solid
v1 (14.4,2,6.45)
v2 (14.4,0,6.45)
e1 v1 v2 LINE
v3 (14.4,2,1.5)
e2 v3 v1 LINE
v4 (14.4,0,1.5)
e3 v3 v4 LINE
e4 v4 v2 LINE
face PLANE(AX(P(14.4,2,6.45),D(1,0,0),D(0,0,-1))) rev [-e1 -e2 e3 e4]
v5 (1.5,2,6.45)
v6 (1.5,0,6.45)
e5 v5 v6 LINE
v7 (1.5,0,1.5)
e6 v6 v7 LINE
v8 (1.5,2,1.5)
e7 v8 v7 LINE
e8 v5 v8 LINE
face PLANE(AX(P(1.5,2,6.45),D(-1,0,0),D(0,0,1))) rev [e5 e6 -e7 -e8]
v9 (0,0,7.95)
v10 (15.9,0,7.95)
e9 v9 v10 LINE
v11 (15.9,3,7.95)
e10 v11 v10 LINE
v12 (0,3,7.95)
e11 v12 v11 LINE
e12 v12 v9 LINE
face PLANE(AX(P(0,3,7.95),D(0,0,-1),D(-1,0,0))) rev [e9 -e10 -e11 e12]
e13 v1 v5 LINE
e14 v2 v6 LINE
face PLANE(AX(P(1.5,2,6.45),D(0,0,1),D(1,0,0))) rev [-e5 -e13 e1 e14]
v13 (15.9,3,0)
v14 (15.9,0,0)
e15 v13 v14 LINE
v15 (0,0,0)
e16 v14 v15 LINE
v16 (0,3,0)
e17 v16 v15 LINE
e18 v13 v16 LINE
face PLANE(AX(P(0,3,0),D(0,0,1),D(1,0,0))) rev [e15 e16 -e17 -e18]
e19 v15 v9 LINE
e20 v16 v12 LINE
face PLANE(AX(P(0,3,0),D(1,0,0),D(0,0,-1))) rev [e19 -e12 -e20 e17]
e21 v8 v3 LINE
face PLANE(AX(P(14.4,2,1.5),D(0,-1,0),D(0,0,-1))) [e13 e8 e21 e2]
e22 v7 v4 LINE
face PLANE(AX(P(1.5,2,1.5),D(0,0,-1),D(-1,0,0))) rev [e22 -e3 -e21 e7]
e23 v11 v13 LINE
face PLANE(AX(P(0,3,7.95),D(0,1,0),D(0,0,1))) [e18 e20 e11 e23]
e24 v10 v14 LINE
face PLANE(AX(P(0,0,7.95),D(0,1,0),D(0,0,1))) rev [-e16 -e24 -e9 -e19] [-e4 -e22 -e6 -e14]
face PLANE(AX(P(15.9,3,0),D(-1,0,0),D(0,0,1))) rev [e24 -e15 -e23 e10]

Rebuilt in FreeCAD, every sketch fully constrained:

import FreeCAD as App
import Part
import Sketcher

doc = App.newDocument("Part")
params = doc.addObject("Spreadsheet::Sheet", "Params")
for row, (alias, value) in enumerate([
    ("sketch1_width", "15.9 mm"),
    ("sketch1_height", "7.95 mm"),
    ("pad1_length", "3 mm"),
    ("sketch2_width", "12.9 mm"),
    ("sketch2_height", "4.95 mm"),
    ("pocket1_length", "2 mm"),
], start=1):
    params.set(f"A{row}", alias)
    params.set(f"B{row}", "=" + value)
    params.setAlias(f"B{row}", alias)

body = doc.addObject("PartDesign::Body", "Body")

sketch1 = body.newObject("Sketcher::SketchObject", "Sketch")
sketch1.AttachmentSupport = (doc.getObject("XZ_Plane"), [""])
sketch1.MapMode = "FlatFace"
sketch1.addGeometry([
    Part.LineSegment(App.Vector(0, 0, 0), App.Vector(0, 8, 0)),
    Part.LineSegment(App.Vector(0, 8, 0), App.Vector(16, 8, 0)),
    Part.LineSegment(App.Vector(16, 8, 0), App.Vector(16, 0, 0)),
    Part.LineSegment(App.Vector(16, 0, 0), App.Vector(0, 0, 0)),
], False)
sketch1.addConstraint([
    Sketcher.Constraint("Coincident", 0, 2, 1, 1),
    Sketcher.Constraint("Coincident", 1, 2, 2, 1),
    Sketcher.Constraint("Coincident", 2, 2, 3, 1),
    Sketcher.Constraint("Coincident", 3, 2, 0, 1),
    Sketcher.Constraint("Vertical", 0),
    Sketcher.Constraint("Horizontal", 1),
    Sketcher.Constraint("Vertical", 2),
    Sketcher.Constraint("Horizontal", 3),
    Sketcher.Constraint("Coincident", 3, 2, -1, 1),
    Sketcher.Constraint("DistanceX", 1, 1, 1, 2, 15.9),
    Sketcher.Constraint("DistanceY", 0, 1, 0, 2, 7.95),
])
sketch1.setExpression("Constraints[9]", "Params.sketch1_width")
sketch1.setExpression("Constraints[10]", "Params.sketch1_height")
pad1 = body.newObject("PartDesign::Pad", "Pad")
pad1.Profile = sketch1
pad1.setExpression("Length", "Params.pad1_length")
pad1.Reversed = True

sketch2 = body.newObject("Sketcher::SketchObject", "Sketch001")
sketch2.AttachmentSupport = (doc.getObject("XZ_Plane"), [""])
sketch2.MapMode = "FlatFace"
sketch2.addGeometry([
    Part.LineSegment(App.Vector(1.5, 6.5, 0), App.Vector(1.5, 1.5, 0)),
    Part.LineSegment(App.Vector(1.5, 1.5, 0), App.Vector(14.4, 1.5, 0)),
    Part.LineSegment(App.Vector(14.4, 1.5, 0), App.Vector(14.4, 6.5, 0)),
    Part.LineSegment(App.Vector(14.4, 6.5, 0), App.Vector(1.5, 6.5, 0)),
], False)
sketch2.addConstraint([
    Sketcher.Constraint("Coincident", 0, 2, 1, 1),
    Sketcher.Constraint("Coincident", 1, 2, 2, 1),
    Sketcher.Constraint("Coincident", 2, 2, 3, 1),
    Sketcher.Constraint("Coincident", 3, 2, 0, 1),
    Sketcher.Constraint("Vertical", 0),
    Sketcher.Constraint("Horizontal", 1),
    Sketcher.Constraint("Vertical", 2),
    Sketcher.Constraint("Horizontal", 3),
    Sketcher.Constraint("DistanceX", 1, 1, 1, 2, 12.9),
    Sketcher.Constraint("DistanceY", 0, 2, 0, 1, 4.95),
    Sketcher.Constraint("DistanceX", -1, 1, 0, 2, 1.5),
    Sketcher.Constraint("DistanceY", -1, 1, 0, 2, 1.5),
])
sketch2.setExpression("Constraints[8]", "Params.sketch2_width")
sketch2.setExpression("Constraints[9]", "Params.sketch2_height")
pocket1 = body.newObject("PartDesign::Pocket", "Pocket")
pocket1.Profile = sketch2
pocket1.setExpression("Length", "Params.pocket1_length")

doc.recompute()
